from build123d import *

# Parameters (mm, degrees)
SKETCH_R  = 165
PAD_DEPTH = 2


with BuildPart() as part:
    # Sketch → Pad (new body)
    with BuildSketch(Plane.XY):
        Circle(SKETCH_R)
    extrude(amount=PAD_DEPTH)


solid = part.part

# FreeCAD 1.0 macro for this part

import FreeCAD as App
import Part
import Sketcher

V = App.Vector

doc = App.newDocument("Part")
body = doc.addObject("PartDesign::Body", "Body")

# Sketch on XY plane
sketch1 = body.newObject("Sketcher::SketchObject", "Sketch")
sketch1.AttachmentSupport = (doc.getObject("XY_Plane"), [""])
sketch1.MapMode = "FlatFace"
sketch1.addGeometry(Part.Circle(V(0, 0, 0), V(0, 0, 1), 165), False)
sketch1.addConstraint([
    Sketcher.Constraint("Coincident", 0, 3, -1, 1),
    Sketcher.Constraint("Diameter", 0, 330.0),
])
pad1 = body.newObject("PartDesign::Pad", "Pad")
pad1.Profile = sketch1
pad1.Length = 2

doc.recompute()
